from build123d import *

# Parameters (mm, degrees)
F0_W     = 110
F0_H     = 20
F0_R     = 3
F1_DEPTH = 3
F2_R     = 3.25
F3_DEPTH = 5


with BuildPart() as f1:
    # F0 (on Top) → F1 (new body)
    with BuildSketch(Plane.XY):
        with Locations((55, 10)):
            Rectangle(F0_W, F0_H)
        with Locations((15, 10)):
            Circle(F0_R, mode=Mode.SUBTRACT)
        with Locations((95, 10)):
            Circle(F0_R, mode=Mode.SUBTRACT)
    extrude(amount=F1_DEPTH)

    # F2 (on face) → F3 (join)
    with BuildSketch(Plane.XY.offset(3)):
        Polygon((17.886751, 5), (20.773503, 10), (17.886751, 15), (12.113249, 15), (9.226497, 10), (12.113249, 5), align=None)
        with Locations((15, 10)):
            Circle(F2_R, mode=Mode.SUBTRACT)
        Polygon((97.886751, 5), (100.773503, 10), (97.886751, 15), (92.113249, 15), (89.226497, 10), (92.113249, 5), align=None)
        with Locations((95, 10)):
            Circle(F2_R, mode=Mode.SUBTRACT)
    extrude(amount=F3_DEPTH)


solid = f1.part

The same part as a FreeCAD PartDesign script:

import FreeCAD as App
import Part
import Sketcher
from FreeCAD import Vector
Q = App.Units.Quantity

doc = App.newDocument("Part")
body = doc.addObject("PartDesign::Body", "Body")

# Sketch on XY plane
sketch1 = body.newObject("Sketcher::SketchObject", "Sketch")
sketch1.AttachmentSupport = (doc.getObject("XY_Plane"), [""])
sketch1.MapMode = "FlatFace"
sketch1.addGeometry([
    Part.LineSegment(Vector(0, 20, 0), Vector(0, 0, 0)),  # 0
    Part.LineSegment(Vector(0, 0, 0), Vector(110, 0, 0)),  # 1
    Part.LineSegment(Vector(110, 0, 0), Vector(110, 20, 0)),  # 2
    Part.LineSegment(Vector(110, 20, 0), Vector(0, 20, 0)),  # 3
    Part.Circle(Vector(15, 10, 0), Vector(0, 0, 1), 3),  # 4
    Part.Circle(Vector(95, 10, 0), Vector(0, 0, 1), 3),  # 5
], False)
sketch1.addConstraint([
    Sketcher.Constraint("Coincident", 0, 2, 1, 1),
    Sketcher.Constraint("Coincident", 1, 2, 2, 1),
    Sketcher.Constraint("Coincident", 2, 2, 3, 1),
    Sketcher.Constraint("Coincident", 3, 2, 0, 1),
    Sketcher.Constraint("Vertical", 0),
    Sketcher.Constraint("Horizontal", 1),
    Sketcher.Constraint("Vertical", 2),
    Sketcher.Constraint("Horizontal", 3),
    Sketcher.Constraint("Coincident", 0, 2, -1, 1),
    Sketcher.Constraint("Equal", 4, 5),
    Sketcher.Constraint("Horizontal", 4, 3, 5, 3),
    Sketcher.Constraint("Diameter", 4, Q("6 mm")),
    Sketcher.Constraint("DistanceX", 1, 1, 1, 2, Q("110 mm")),
    Sketcher.Constraint("DistanceY", 0, 2, 0, 1, Q("20 mm")),
    Sketcher.Constraint("DistanceX", -1, 1, 4, 3, Q("15 mm")),
    Sketcher.Constraint("DistanceY", -1, 1, 4, 3, Q("10 mm")),
    Sketcher.Constraint("DistanceX", -1, 1, 5, 3, Q("95 mm")),
])
pad1 = body.newObject("PartDesign::Pad", "Pad")
pad1.Profile = sketch1
pad1.Length = 3

# Sketch on XY plane
sketch2 = body.newObject("Sketcher::SketchObject", "Sketch001")
sketch2.AttachmentSupport = (doc.getObject("XY_Plane"), [""])
sketch2.MapMode = "FlatFace"
sketch2.AttachmentOffset = App.Placement(Vector(0, 0, 3), App.Rotation())
sketch2.addGeometry([
    Part.LineSegment(Vector(17.9, 5, 0), Vector(20.8, 10, 0)),  # 0
    Part.LineSegment(Vector(20.8, 10, 0), Vector(17.9, 15, 0)),  # 1
    Part.LineSegment(Vector(17.9, 15, 0), Vector(12.1, 15, 0)),  # 2
    Part.LineSegment(Vector(12.1, 15, 0), Vector(9.2, 10, 0)),  # 3
    Part.LineSegment(Vector(9.2, 10, 0), Vector(12.1, 5, 0)),  # 4
    Part.LineSegment(Vector(12.1, 5, 0), Vector(17.9, 5, 0)),  # 5
    Part.Circle(Vector(15, 10, 0), Vector(0, 0, 1), 3.2),  # 6
    Part.LineSegment(Vector(97.9, 5, 0), Vector(100.8, 10, 0)),  # 7
    Part.LineSegment(Vector(100.8, 10, 0), Vector(97.9, 15, 0)),  # 8
    Part.LineSegment(Vector(97.9, 15, 0), Vector(92.1, 15, 0)),  # 9
    Part.LineSegment(Vector(92.1, 15, 0), Vector(89.2, 10, 0)),  # 10
    Part.LineSegment(Vector(89.2, 10, 0), Vector(92.1, 5, 0)),  # 11
    Part.LineSegment(Vector(92.1, 5, 0), Vector(97.9, 5, 0)),  # 12
    Part.Circle(Vector(95, 10, 0), Vector(0, 0, 1), 3.2),  # 13
], False)
sketch2.addConstraint([
    Sketcher.Constraint("Coincident", 0, 2, 1, 1),
    Sketcher.Constraint("Coincident", 1, 2, 2, 1),
    Sketcher.Constraint("Coincident", 2, 2, 3, 1),
    Sketcher.Constraint("Coincident", 3, 2, 4, 1),
    Sketcher.Constraint("Coincident", 4, 2, 5, 1),
    Sketcher.Constraint("Coincident", 5, 2, 0, 1),
    Sketcher.Constraint("Coincident", 7, 2, 8, 1),
    Sketcher.Constraint("Coincident", 8, 2, 9, 1),
    Sketcher.Constraint("Coincident", 9, 2, 10, 1),
    Sketcher.Constraint("Coincident", 10, 2, 11, 1),
    Sketcher.Constraint("Coincident", 11, 2, 12, 1),
    Sketcher.Constraint("Coincident", 12, 2, 7, 1),
    Sketcher.Constraint("Horizontal", 2),
    Sketcher.Constraint("Horizontal", 5),
    Sketcher.Constraint("Horizontal", 9),
    Sketcher.Constraint("Horizontal", 12),
    Sketcher.Constraint("Equal", 6, 13),
    Sketcher.Constraint("Parallel", 0, 3),
    Sketcher.Constraint("Parallel", 1, 4),
    Sketcher.Constraint("Parallel", 3, 7),
    Sketcher.Constraint("Parallel", 4, 8),
    Sketcher.Constraint("Parallel", 7, 10),
    Sketcher.Constraint("Parallel", 8, 11),
    Sketcher.Constraint("Horizontal", 6, 3, 13, 3),
    Sketcher.Constraint("Horizontal", 13, 3, 0, 2),
    Sketcher.Constraint("Horizontal", 0, 2, 3, 2),
    Sketcher.Constraint("Horizontal", 3, 2, 7, 2),
    Sketcher.Constraint("Horizontal", 2, 2, 8, 2),
    Sketcher.Constraint("Horizontal", 7, 2, 10, 2),
    Sketcher.Constraint("Horizontal", 5, 2, 11, 2),
    Sketcher.Constraint("Vertical", 2, 2, 4, 2),
    Sketcher.Constraint("Vertical", 1, 2, 5, 2),
    Sketcher.Constraint("Equal", 5, 9),
    Sketcher.Constraint("Diameter", 6, Q("6.5 mm")),
    Sketcher.Constraint("Angle", 0, Q("59.999994 deg")),
    Sketcher.Constraint("DistanceX", -1, 1, 6, 3, Q("15 mm")),
    Sketcher.Constraint("DistanceY", -1, 1, 6, 3, Q("10 mm")),
    Sketcher.Constraint("DistanceX", -1, 1, 13, 3, Q("95 mm")),
    Sketcher.Constraint("DistanceY", -1, 1, 1, 2, Q("15 mm")),
    Sketcher.Constraint("DistanceX", 0, 2, 7, 2, Q("80 mm")),
    Sketcher.Constraint("DistanceX", 2, 2, 2, 1, Q("5.773502 mm")),
    Sketcher.Constraint("DistanceX", -1, 1, 1, 2, Q("17.886751 mm")),
])
pad2 = body.newObject("PartDesign::Pad", "Pad001")
pad2.Profile = sketch2
pad2.Length = 5

doc.recompute()
